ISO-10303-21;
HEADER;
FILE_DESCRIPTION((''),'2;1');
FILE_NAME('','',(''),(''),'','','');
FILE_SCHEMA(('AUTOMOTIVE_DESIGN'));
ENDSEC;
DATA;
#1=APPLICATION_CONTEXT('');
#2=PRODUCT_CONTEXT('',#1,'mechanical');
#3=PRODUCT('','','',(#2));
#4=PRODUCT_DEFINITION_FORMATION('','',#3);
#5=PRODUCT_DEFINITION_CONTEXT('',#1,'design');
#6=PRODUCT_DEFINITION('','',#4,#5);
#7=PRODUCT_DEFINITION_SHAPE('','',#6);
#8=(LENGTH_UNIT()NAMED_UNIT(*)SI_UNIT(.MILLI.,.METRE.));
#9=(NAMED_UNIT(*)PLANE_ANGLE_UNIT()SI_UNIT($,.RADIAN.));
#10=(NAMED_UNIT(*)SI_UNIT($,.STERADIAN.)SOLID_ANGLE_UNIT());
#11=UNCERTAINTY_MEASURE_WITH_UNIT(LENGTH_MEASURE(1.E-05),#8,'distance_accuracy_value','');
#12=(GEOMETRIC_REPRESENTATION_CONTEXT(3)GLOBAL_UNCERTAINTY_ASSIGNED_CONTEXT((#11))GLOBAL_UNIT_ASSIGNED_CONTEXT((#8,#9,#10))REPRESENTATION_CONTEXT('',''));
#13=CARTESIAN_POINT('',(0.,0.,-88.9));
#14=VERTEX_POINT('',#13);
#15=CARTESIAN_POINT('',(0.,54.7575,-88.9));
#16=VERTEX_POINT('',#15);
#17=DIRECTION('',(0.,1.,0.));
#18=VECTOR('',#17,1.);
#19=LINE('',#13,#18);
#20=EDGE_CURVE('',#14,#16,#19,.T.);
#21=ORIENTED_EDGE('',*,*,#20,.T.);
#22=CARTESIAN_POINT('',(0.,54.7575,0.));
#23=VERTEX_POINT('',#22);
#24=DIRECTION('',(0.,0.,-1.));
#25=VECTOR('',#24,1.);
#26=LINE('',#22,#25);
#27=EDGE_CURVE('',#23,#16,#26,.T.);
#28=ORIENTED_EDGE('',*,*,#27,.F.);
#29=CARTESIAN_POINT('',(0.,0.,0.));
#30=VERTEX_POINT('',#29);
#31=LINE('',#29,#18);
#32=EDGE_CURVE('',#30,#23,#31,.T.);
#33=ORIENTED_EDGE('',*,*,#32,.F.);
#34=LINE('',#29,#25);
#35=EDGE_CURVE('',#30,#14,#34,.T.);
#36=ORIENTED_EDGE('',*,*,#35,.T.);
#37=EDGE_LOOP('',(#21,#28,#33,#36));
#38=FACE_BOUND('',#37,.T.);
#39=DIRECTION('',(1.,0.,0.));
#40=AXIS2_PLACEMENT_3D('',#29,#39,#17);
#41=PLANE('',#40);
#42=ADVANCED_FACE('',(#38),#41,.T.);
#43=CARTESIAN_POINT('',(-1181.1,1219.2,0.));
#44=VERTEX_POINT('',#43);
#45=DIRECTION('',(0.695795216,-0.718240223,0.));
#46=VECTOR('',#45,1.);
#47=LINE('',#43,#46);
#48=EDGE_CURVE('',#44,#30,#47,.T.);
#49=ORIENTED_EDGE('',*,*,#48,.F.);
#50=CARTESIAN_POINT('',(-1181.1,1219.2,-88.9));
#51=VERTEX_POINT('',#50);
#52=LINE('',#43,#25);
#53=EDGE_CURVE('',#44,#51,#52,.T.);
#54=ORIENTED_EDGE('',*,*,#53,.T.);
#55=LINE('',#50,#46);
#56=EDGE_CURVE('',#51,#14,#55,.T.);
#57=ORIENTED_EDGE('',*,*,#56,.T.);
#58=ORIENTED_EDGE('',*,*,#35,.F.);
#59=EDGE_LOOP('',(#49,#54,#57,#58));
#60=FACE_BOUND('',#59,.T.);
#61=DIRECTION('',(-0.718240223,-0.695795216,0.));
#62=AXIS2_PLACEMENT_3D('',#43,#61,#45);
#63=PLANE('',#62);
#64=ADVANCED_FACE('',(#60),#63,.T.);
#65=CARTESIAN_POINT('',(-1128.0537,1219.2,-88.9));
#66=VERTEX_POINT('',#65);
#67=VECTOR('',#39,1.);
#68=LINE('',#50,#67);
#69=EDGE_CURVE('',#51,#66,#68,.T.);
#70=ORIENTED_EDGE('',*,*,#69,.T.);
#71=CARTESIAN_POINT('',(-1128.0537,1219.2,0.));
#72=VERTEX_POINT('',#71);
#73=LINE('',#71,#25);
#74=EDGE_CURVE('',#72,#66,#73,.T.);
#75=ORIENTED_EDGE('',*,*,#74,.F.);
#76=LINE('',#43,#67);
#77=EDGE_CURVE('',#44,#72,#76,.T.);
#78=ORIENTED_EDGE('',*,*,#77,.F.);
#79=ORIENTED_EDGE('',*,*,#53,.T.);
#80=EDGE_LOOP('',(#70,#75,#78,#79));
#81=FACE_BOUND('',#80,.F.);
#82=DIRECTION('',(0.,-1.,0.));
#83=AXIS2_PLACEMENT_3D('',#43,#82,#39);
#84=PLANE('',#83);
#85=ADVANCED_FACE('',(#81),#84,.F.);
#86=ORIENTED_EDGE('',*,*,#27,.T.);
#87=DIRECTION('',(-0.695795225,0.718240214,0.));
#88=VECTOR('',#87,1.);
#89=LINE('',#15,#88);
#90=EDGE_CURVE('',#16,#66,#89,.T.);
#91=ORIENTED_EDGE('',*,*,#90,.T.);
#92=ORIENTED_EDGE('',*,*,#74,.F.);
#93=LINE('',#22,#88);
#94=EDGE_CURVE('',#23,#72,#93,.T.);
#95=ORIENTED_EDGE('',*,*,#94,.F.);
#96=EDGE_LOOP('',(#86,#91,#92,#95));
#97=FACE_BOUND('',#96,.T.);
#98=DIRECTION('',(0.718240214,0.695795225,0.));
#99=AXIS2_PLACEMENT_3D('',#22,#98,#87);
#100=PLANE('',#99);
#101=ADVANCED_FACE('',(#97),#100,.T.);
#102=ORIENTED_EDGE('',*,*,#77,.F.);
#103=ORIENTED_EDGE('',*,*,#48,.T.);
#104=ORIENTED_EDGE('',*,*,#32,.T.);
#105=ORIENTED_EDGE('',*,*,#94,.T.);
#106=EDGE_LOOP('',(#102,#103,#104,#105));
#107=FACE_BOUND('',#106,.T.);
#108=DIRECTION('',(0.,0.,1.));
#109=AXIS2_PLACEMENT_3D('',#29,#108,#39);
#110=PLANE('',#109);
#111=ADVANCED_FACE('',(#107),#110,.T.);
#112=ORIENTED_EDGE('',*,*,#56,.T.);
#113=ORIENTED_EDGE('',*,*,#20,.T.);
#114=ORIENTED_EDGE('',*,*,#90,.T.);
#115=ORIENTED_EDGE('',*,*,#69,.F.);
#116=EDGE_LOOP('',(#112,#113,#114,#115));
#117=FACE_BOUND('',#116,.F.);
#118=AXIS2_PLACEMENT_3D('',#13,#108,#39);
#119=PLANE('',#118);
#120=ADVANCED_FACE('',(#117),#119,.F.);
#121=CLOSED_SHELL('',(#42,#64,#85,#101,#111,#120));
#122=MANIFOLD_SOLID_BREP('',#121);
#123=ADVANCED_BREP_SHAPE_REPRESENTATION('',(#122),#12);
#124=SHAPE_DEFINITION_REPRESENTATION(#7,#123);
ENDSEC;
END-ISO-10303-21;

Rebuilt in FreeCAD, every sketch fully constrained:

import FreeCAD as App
import Part
import Sketcher

V = App.Vector
Q = App.Units.Quantity


def add_polygon(sketch, points):
    """Adds a closed chain of lines whose ends are joined by coincident constraints."""
    first, n = sketch.GeometryCount, len(points)
    for a, b in zip(points, points[1:] + points[:1]):
        sketch.addGeometry(Part.LineSegment(App.Vector(*a, 0), App.Vector(*b, 0)), False)
    for i in range(n):
        sketch.addConstraint(Sketcher.Constraint("Coincident", first + i, 2, first + (i + 1) % n, 1))

doc = App.newDocument("Part")
params = doc.addObject("Spreadsheet::Sheet", "Params")
for row, (alias, value) in enumerate([
    ("pad1_length", "3.5 in"),
], start=1):
    params.set(f"A{row}", alias)
    params.set(f"B{row}", "=" + value)
    params.setAlias(f"B{row}", alias)

body = doc.addObject("PartDesign::Body", "Body")

# Sketch on XY plane
sketch1 = doc.addObject("Sketcher::SketchObject", "Sketch")
body.addObject(sketch1)
sketch1.AttachmentSupport = (doc.XY_Plane, [""])
sketch1.MapMode = "FlatFace"
add_polygon(sketch1, [(-1181, 1219), (0, 0), (0, 55), (-1128, 1219)])  # lines 0-3
sketch1.addConstraint([
    Sketcher.Constraint("Vertical", 1),
    Sketcher.Constraint("Horizontal", 3),
    Sketcher.Constraint("Coincident", 0, 2, -1, 1),
    Sketcher.Constraint("Parallel", 0, 2),
    Sketcher.Constraint("DistanceY", -1, 1, 2, 2, Q("48 in")),
    Sketcher.Constraint("DistanceX", 3, 2, -1, 1, Q("46.5 in")),
    Sketcher.Constraint("DistanceY", 1, 1, 1, 2, Q("2.1558 in")),
])
pad1 = doc.addObject("PartDesign::Pad", "Pad")
body.addObject(pad1)
pad1.Profile = sketch1
pad1.setExpression("Length", "Params.pad1_length")
pad1.Reversed = True

doc.recompute()
